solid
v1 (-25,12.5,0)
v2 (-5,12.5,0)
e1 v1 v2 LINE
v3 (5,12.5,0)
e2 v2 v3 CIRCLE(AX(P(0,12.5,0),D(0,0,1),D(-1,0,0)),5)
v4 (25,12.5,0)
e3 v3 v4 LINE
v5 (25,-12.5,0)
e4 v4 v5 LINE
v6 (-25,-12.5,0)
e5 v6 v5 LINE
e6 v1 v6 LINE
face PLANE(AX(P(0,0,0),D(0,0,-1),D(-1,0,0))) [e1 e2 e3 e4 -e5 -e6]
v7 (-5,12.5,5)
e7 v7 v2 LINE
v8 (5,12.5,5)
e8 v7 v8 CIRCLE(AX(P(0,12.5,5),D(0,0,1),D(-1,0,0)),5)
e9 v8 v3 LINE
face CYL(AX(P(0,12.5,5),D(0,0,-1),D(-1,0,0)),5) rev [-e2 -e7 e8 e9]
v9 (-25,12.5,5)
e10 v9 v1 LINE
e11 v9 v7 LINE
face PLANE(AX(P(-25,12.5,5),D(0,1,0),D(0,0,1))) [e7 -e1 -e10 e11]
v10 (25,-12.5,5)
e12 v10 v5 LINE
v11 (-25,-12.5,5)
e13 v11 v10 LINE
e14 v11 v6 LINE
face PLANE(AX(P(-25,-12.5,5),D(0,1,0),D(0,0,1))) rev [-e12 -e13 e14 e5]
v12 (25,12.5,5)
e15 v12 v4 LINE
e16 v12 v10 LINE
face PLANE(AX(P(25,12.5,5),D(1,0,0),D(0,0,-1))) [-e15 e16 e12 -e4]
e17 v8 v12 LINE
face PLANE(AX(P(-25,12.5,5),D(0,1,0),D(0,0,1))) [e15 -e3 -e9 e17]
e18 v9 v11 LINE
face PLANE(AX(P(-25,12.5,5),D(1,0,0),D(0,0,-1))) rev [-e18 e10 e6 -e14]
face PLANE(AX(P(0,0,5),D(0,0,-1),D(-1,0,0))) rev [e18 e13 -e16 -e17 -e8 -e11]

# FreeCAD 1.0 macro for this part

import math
import FreeCAD as App
import Part
import Sketcher


def add_polygon(sketch, points):
    """Adds a closed chain of lines whose ends are joined by coincident constraints."""
    first, n = sketch.GeometryCount, len(points)
    for a, b in zip(points, points[1:] + points[:1]):
        sketch.addGeometry(Part.LineSegment(App.Vector(*a, 0), App.Vector(*b, 0)), False)
    for i in range(n):
        sketch.addConstraint(Sketcher.Constraint("Coincident", first + i, 2, first + (i + 1) % n, 1))

doc = App.newDocument("Part")
body = doc.addObject("PartDesign::Body", "Body")

sketch1 = doc.addObject("Sketcher::SketchObject", "Sketch")
body.addObject(sketch1)
sketch1.AttachmentSupport = (doc.XY_Plane, [""])
sketch1.MapMode = "FlatFace"
add_polygon(sketch1, [(-25, 12.5), (-25, -12.5), (25, -12.5), (25, 12.5)])
sketch1.addConstraint([
    Sketcher.Constraint("Vertical", 0),
    Sketcher.Constraint("Horizontal", 1),
    Sketcher.Constraint("Vertical", 2),
    Sketcher.Constraint("Horizontal", 3),
    Sketcher.Constraint("Symmetric", 0, 2, 2, 2, -1, 1),
    Sketcher.Constraint("DistanceX", 1, 1, 1, 2, 50.0),
    Sketcher.Constraint("DistanceY", 0, 2, 0, 1, 25.0),
])
pad1 = doc.addObject("PartDesign::Pad", "Pad")
body.addObject(pad1)
pad1.Profile = sketch1
pad1.Length = 5

sketch2 = doc.addObject("Sketcher::SketchObject", "Sketch001")
body.addObject(sketch2)
sketch2.AttachmentSupport = (doc.XY_Plane, [""])
sketch2.MapMode = "FlatFace"
sketch2.addGeometry([
    Part.LineSegment(App.Vector(5, 12.5, 0), App.Vector(-5, 12.5, 0)),
    Part.ArcOfCircle(Part.Circle(App.Vector(0, 12.5, 0), App.Vector(0, 0, 1), 5), math.radians(180), math.radians(360)),
], False)
sketch2.addConstraint([
    Sketcher.Constraint("Coincident", 0, 1, 1, 2),
    Sketcher.Constraint("Coincident", 1, 1, 0, 2),
    Sketcher.Constraint("Horizontal", 0),
    Sketcher.Constraint("PointOnObject", 1, 3, -2),
    Sketcher.Constraint("Horizontal", 1, 3, 0, 1),
    Sketcher.Constraint("Radius", 1, 5.0),
    Sketcher.Constraint("DistanceY", -1, 1, 1, 3, 12.5),
])
pocket1 = doc.addObject("PartDesign::Pocket", "Pocket")
body.addObject(pocket1)
pocket1.Profile = sketch2
pocket1.Length = 5
pocket1.Reversed = True

doc.recompute()
